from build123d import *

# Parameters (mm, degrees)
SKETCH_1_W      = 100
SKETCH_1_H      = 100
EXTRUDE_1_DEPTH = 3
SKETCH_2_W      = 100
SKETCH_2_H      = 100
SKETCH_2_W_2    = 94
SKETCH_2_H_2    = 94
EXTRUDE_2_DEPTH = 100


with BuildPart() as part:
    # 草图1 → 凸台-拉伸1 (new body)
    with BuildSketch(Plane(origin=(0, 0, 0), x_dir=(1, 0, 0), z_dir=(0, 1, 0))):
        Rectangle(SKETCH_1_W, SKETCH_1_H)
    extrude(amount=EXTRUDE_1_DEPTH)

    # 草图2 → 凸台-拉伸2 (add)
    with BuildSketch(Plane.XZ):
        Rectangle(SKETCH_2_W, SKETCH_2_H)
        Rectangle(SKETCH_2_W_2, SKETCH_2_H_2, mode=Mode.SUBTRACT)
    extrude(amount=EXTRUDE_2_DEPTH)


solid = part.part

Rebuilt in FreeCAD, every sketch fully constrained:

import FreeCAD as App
import Part
import Sketcher


def add_polygon(sketch, points):
    """Adds a closed chain of lines whose ends are joined by coincident constraints."""
    first, n = sketch.GeometryCount, len(points)
    for a, b in zip(points, points[1:] + points[:1]):
        sketch.addGeometry(Part.LineSegment(App.Vector(*a, 0), App.Vector(*b, 0)), False)
    for i in range(n):
        sketch.addConstraint(Sketcher.Constraint("Coincident", first + i, 2, first + (i + 1) % n, 1))

doc = App.newDocument("Part")
body = doc.addObject("PartDesign::Body", "Body")

# Sketch on XZ plane
sketch1 = body.newObject("Sketcher::SketchObject", "Sketch")
sketch1.AttachmentSupport = (doc.getObject("XZ_Plane"), [""])
sketch1.MapMode = "FlatFace"
add_polygon(sketch1, [(-50, -50), (-50, 50), (50, 50), (50, -50)])  # lines 0-3
sketch1.addConstraint(Sketcher.Constraint("Vertical", 0))
sketch1.addConstraint(Sketcher.Constraint("Horizontal", 1))
sketch1.addConstraint(Sketcher.Constraint("Vertical", 2))
sketch1.addConstraint(Sketcher.Constraint("Horizontal", 3))
sketch1.addConstraint(Sketcher.Constraint("Symmetric", 0, 2, 2, 2, -1, 1))
sketch1.addConstraint(Sketcher.Constraint("Equal", 3, 0))
sketch1.addConstraint(Sketcher.Constraint("DistanceX", 1, 1, 1, 2, 100.0))
pad1 = body.newObject("PartDesign::Pad", "Pad")
pad1.Profile = sketch1
pad1.Length = 3
pad1.Reversed = True

# Sketch on XZ plane
sketch2 = body.newObject("Sketcher::SketchObject", "Sketch001")
sketch2.AttachmentSupport = (doc.getObject("XZ_Plane"), [""])
sketch2.MapMode = "FlatFace"
add_polygon(sketch2, [(-50, 50), (-50, -50), (50, -50), (50, 50)])  # lines 0-3
add_polygon(sketch2, [(47, -47), (-47, -47), (-47, 47), (47, 47)])  # lines 4-7
sketch2.addConstraint(Sketcher.Constraint("Vertical", 0))
sketch2.addConstraint(Sketcher.Constraint("Horizontal", 1))
sketch2.addConstraint(Sketcher.Constraint("Vertical", 2))
sketch2.addConstraint(Sketcher.Constraint("Horizontal", 3))
sketch2.addConstraint(Sketcher.Constraint("Horizontal", 4))
sketch2.addConstraint(Sketcher.Constraint("Vertical", 5))
sketch2.addConstraint(Sketcher.Constraint("Horizontal", 6))
sketch2.addConstraint(Sketcher.Constraint("Vertical", 7))
sketch2.addConstraint(Sketcher.Constraint("Symmetric", 0, 2, 2, 2, -1, 1))
sketch2.addConstraint(Sketcher.Constraint("Symmetric", 4, 2, 6, 2, -1, 1))
sketch2.addConstraint(Sketcher.Constraint("Equal", 3, 0))
sketch2.addConstraint(Sketcher.Constraint("Equal", 6, 5))
sketch2.addConstraint(Sketcher.Constraint("DistanceX", 1, 1, 1, 2, 100.0))
sketch2.addConstraint(Sketcher.Constraint("DistanceX", 4, 2, 4, 1, 94.0))
pad2 = body.newObject("PartDesign::Pad", "Pad001")
pad2.Profile = sketch2
pad2.Length = 100

doc.recompute()
